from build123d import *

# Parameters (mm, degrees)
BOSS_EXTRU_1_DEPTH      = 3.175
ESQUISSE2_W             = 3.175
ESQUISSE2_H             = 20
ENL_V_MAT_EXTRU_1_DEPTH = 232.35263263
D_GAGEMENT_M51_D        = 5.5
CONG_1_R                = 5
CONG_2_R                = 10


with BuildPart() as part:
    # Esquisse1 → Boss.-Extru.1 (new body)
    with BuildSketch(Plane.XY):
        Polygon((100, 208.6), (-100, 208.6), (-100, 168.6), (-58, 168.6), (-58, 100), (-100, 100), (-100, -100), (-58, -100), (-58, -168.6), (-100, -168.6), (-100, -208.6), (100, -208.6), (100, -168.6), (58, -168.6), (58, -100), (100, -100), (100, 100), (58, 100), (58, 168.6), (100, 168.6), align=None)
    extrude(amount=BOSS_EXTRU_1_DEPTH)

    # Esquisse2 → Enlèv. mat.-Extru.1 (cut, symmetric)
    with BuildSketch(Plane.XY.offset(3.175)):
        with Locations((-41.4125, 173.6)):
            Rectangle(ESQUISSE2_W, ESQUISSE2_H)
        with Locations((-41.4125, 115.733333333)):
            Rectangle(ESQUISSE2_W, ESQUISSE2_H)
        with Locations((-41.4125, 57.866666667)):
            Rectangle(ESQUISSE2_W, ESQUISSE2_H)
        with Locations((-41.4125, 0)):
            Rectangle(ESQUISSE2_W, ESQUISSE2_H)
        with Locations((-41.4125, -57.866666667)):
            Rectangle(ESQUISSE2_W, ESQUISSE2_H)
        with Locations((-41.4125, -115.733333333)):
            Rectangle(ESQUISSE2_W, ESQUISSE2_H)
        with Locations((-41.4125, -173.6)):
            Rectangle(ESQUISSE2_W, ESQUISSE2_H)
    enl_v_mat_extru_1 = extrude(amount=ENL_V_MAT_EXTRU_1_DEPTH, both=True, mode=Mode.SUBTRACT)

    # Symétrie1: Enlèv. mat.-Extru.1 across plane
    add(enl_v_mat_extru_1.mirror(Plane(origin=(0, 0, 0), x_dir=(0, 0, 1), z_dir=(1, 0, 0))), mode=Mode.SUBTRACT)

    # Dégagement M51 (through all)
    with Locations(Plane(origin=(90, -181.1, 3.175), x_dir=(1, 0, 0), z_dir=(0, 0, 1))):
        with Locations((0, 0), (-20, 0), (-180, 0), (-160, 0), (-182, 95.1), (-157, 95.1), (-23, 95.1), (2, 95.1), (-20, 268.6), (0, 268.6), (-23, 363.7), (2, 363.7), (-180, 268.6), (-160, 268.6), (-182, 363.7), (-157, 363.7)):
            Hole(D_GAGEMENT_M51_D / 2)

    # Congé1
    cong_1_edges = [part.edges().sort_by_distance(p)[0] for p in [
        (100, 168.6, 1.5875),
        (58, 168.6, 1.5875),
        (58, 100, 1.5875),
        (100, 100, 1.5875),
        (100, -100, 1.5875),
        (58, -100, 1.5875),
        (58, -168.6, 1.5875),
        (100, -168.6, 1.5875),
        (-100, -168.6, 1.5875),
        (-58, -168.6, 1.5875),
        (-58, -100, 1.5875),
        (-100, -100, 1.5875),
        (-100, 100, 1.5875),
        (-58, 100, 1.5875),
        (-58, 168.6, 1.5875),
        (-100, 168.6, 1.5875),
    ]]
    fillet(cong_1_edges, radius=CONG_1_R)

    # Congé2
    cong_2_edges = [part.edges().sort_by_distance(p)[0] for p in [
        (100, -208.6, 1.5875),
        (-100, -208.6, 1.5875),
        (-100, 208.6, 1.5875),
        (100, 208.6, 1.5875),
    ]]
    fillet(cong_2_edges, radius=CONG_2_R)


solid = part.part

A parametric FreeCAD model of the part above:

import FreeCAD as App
import Part
import Sketcher

V = App.Vector
Q = App.Units.Quantity


def edges_at(feature, points):
    """Names of the edges that pass closest to the given points."""
    edges = feature.Shape.Edges
    near = lambda p: min(range(len(edges)), key=lambda i: edges[i].distToShape(Part.Vertex(*p))[0])
    return sorted({f"Edge{near(p) + 1}" for p in points})

doc = App.newDocument("Part")
body = doc.addObject("PartDesign::Body", "Body")

# Sketch on XY plane
sketch1 = body.newObject("Sketcher::SketchObject", "Sketch")
sketch1.AttachmentSupport = (doc.getObject("XY_Plane"), [""])
sketch1.MapMode = "FlatFace"
sketch1.addGeometry([
    Part.LineSegment(V(100, 208.6, 0), V(-100, 208.6, 0)),  # 0
    Part.LineSegment(V(-100, 208.6, 0), V(-100, 168.6, 0)),  # 1
    Part.LineSegment(V(-100, 168.6, 0), V(-58, 168.6, 0)),  # 2
    Part.LineSegment(V(-58, 168.6, 0), V(-58, 100, 0)),  # 3
    Part.LineSegment(V(-58, 100, 0), V(-100, 100, 0)),  # 4
    Part.LineSegment(V(-100, 100, 0), V(-100, -100, 0)),  # 5
    Part.LineSegment(V(-100, -100, 0), V(-58, -100, 0)),  # 6
    Part.LineSegment(V(-58, -100, 0), V(-58, -168.6, 0)),  # 7
    Part.LineSegment(V(-58, -168.6, 0), V(-100, -168.6, 0)),  # 8
    Part.LineSegment(V(-100, -168.6, 0), V(-100, -208.6, 0)),  # 9
    Part.LineSegment(V(-100, -208.6, 0), V(100, -208.6, 0)),  # 10
    Part.LineSegment(V(100, -208.6, 0), V(100, -168.6, 0)),  # 11
    Part.LineSegment(V(100, -168.6, 0), V(58, -168.6, 0)),  # 12
    Part.LineSegment(V(58, -168.6, 0), V(58, -100, 0)),  # 13
    Part.LineSegment(V(58, -100, 0), V(100, -100, 0)),  # 14
    Part.LineSegment(V(100, -100, 0), V(100, 100, 0)),  # 15
    Part.LineSegment(V(100, 100, 0), V(58, 100, 0)),  # 16
    Part.LineSegment(V(58, 100, 0), V(58, 168.6, 0)),  # 17
    Part.LineSegment(V(58, 168.6, 0), V(100, 168.6, 0)),  # 18
    Part.LineSegment(V(100, 168.6, 0), V(100, 208.6, 0)),  # 19
], False)
sketch1.addConstraint([
    Sketcher.Constraint("Coincident", 0, 2, 1, 1),
    Sketcher.Constraint("Coincident", 1, 2, 2, 1),
    Sketcher.Constraint("Coincident", 2, 2, 3, 1),
    Sketcher.Constraint("Coincident", 3, 2, 4, 1),
    Sketcher.Constraint("Coincident", 4, 2, 5, 1),
    Sketcher.Constraint("Coincident", 5, 2, 6, 1),
    Sketcher.Constraint("Coincident", 6, 2, 7, 1),
    Sketcher.Constraint("Coincident", 7, 2, 8, 1),
    Sketcher.Constraint("Coincident", 8, 2, 9, 1),
    Sketcher.Constraint("Coincident", 9, 2, 10, 1),
    Sketcher.Constraint("Coincident", 10, 2, 11, 1),
    Sketcher.Constraint("Coincident", 11, 2, 12, 1),
    Sketcher.Constraint("Coincident", 12, 2, 13, 1),
    Sketcher.Constraint("Coincident", 13, 2, 14, 1),
    Sketcher.Constraint("Coincident", 14, 2, 15, 1),
    Sketcher.Constraint("Coincident", 15, 2, 16, 1),
    Sketcher.Constraint("Coincident", 16, 2, 17, 1),
    Sketcher.Constraint("Coincident", 17, 2, 18, 1),
    Sketcher.Constraint("Coincident", 18, 2, 19, 1),
    Sketcher.Constraint("Coincident", 19, 2, 0, 1),
    Sketcher.Constraint("Horizontal", 0),
    Sketcher.Constraint("Vertical", 1),
    Sketcher.Constraint("Horizontal", 2),
    Sketcher.Constraint("Vertical", 3),
    Sketcher.Constraint("Horizontal", 4),
    Sketcher.Constraint("Vertical", 5),
    Sketcher.Constraint("Horizontal", 6),
    Sketcher.Constraint("Vertical", 7),
    Sketcher.Constraint("Horizontal", 8),
    Sketcher.Constraint("Vertical", 9),
    Sketcher.Constraint("Horizontal", 10),
    Sketcher.Constraint("Vertical", 11),
    Sketcher.Constraint("Horizontal", 12),
    Sketcher.Constraint("Vertical", 13),
    Sketcher.Constraint("Horizontal", 14),
    Sketcher.Constraint("Vertical", 15),
    Sketcher.Constraint("Horizontal", 16),
    Sketcher.Constraint("Vertical", 17),
    Sketcher.Constraint("Horizontal", 18),
    Sketcher.Constraint("Vertical", 19),
    Sketcher.Constraint("Symmetric", 0, 2, 10, 2, -1, 1),
    Sketcher.Constraint("Symmetric", 2, 2, 12, 2, -1, 1),
    Sketcher.Constraint("Symmetric", 4, 2, 14, 2, -1, 1),
    Sketcher.Constraint("Symmetric", 6, 2, 16, 2, -1, 1),
    Sketcher.Constraint("Symmetric", 8, 2, 18, 2, -1, 1),
    Sketcher.Constraint("Symmetric", 8, 2, 11, 2, -2),
    Sketcher.Constraint("Symmetric", 6, 2, 13, 2, -2),
    Sketcher.Constraint("Vertical", 1, 2, 4, 2),
    Sketcher.Constraint("Equal", 10, 5),
    Sketcher.Constraint("DistanceX", 0, 2, 0, 1, Q("200 mm")),
    Sketcher.Constraint("DistanceX", 2, 1, 2, 2, Q("42 mm")),
    Sketcher.Constraint("DistanceY", 1, 2, 1, 1, Q("40 mm")),
    Sketcher.Constraint("DistanceY", 3, 2, 3, 1, Q("68.6 mm")),
])
pad1 = body.newObject("PartDesign::Pad", "Pad")
pad1.Profile = sketch1
pad1.Length = 3.175

# Sketch on XY plane
sketch2 = body.newObject("Sketcher::SketchObject", "Sketch001")
sketch2.AttachmentSupport = (doc.getObject("XY_Plane"), [""])
sketch2.MapMode = "FlatFace"
sketch2.AttachmentOffset = App.Placement(V(0, 0, 3.175), App.Rotation())
sketch2.addGeometry([
    Part.LineSegment(V(-43, 183.6, 0), V(-43, 163.6, 0)),  # 0
    Part.LineSegment(V(-43, 163.6, 0), V(-39.825, 163.6, 0)),  # 1
    Part.LineSegment(V(-39.825, 163.6, 0), V(-39.825, 183.6, 0)),  # 2
    Part.LineSegment(V(-39.825, 183.6, 0), V(-43, 183.6, 0)),  # 3
    Part.LineSegment(V(-43, 125.733333, 0), V(-43, 105.733333, 0)),  # 4
    Part.LineSegment(V(-43, 105.733333, 0), V(-39.825, 105.733333, 0)),  # 5
    Part.LineSegment(V(-39.825, 105.733333, 0), V(-39.825, 125.733333, 0)),  # 6
    Part.LineSegment(V(-39.825, 125.733333, 0), V(-43, 125.733333, 0)),  # 7
    Part.LineSegment(V(-43, 67.866667, 0), V(-43, 47.866667, 0)),  # 8
    Part.LineSegment(V(-43, 47.866667, 0), V(-39.825, 47.866667, 0)),  # 9
    Part.LineSegment(V(-39.825, 47.866667, 0), V(-39.825, 67.866667, 0)),  # 10
    Part.LineSegment(V(-39.825, 67.866667, 0), V(-43, 67.866667, 0)),  # 11
    Part.LineSegment(V(-43, 10, 0), V(-43, -10, 0)),  # 12
    Part.LineSegment(V(-43, -10, 0), V(-39.825, -10, 0)),  # 13
    Part.LineSegment(V(-39.825, -10, 0), V(-39.825, 10, 0)),  # 14
    Part.LineSegment(V(-39.825, 10, 0), V(-43, 10, 0)),  # 15
    Part.LineSegment(V(-43, -47.866667, 0), V(-43, -67.866667, 0)),  # 16
    Part.LineSegment(V(-43, -67.866667, 0), V(-39.825, -67.866667, 0)),  # 17
    Part.LineSegment(V(-39.825, -67.866667, 0), V(-39.825, -47.866667, 0)),  # 18
    Part.LineSegment(V(-39.825, -47.866667, 0), V(-43, -47.866667, 0)),  # 19
    Part.LineSegment(V(-43, -105.733333, 0), V(-43, -125.733333, 0)),  # 20
    Part.LineSegment(V(-43, -125.733333, 0), V(-39.825, -125.733333, 0)),  # 21
    Part.LineSegment(V(-39.825, -125.733333, 0), V(-39.825, -105.733333, 0)),  # 22
    Part.LineSegment(V(-39.825, -105.733333, 0), V(-43, -105.733333, 0)),  # 23
    Part.LineSegment(V(-43, -163.6, 0), V(-43, -183.6, 0)),  # 24
    Part.LineSegment(V(-43, -183.6, 0), V(-39.825, -183.6, 0)),  # 25
    Part.LineSegment(V(-39.825, -183.6, 0), V(-39.825, -163.6, 0)),  # 26
    Part.LineSegment(V(-39.825, -163.6, 0), V(-43, -163.6, 0)),  # 27
], False)
sketch2.addConstraint([
    Sketcher.Constraint("Coincident", 0, 2, 1, 1),
    Sketcher.Constraint("Coincident", 1, 2, 2, 1),
    Sketcher.Constraint("Coincident", 2, 2, 3, 1),
    Sketcher.Constraint("Coincident", 3, 2, 0, 1),
    Sketcher.Constraint("Coincident", 4, 2, 5, 1),
    Sketcher.Constraint("Coincident", 5, 2, 6, 1),
    Sketcher.Constraint("Coincident", 6, 2, 7, 1),
    Sketcher.Constraint("Coincident", 7, 2, 4, 1),
    Sketcher.Constraint("Coincident", 8, 2, 9, 1),
    Sketcher.Constraint("Coincident", 9, 2, 10, 1),
    Sketcher.Constraint("Coincident", 10, 2, 11, 1),
    Sketcher.Constraint("Coincident", 11, 2, 8, 1),
    Sketcher.Constraint("Coincident", 12, 2, 13, 1),
    Sketcher.Constraint("Coincident", 13, 2, 14, 1),
    Sketcher.Constraint("Coincident", 14, 2, 15, 1),
    Sketcher.Constraint("Coincident", 15, 2, 12, 1),
    Sketcher.Constraint("Coincident", 16, 2, 17, 1),
    Sketcher.Constraint("Coincident", 17, 2, 18, 1),
    Sketcher.Constraint("Coincident", 18, 2, 19, 1),
    Sketcher.Constraint("Coincident", 19, 2, 16, 1),
    Sketcher.Constraint("Coincident", 20, 2, 21, 1),
    Sketcher.Constraint("Coincident", 21, 2, 22, 1),
    Sketcher.Constraint("Coincident", 22, 2, 23, 1),
    Sketcher.Constraint("Coincident", 23, 2, 20, 1),
    Sketcher.Constraint("Coincident", 24, 2, 25, 1),
    Sketcher.Constraint("Coincident", 25, 2, 26, 1),
    Sketcher.Constraint("Coincident", 26, 2, 27, 1),
    Sketcher.Constraint("Coincident", 27, 2, 24, 1),
    Sketcher.Constraint("Vertical", 0),
    Sketcher.Constraint("Horizontal", 1),
    Sketcher.Constraint("Vertical", 2),
    Sketcher.Constraint("Horizontal", 3),
    Sketcher.Constraint("Vertical", 4),
    Sketcher.Constraint("Horizontal", 5),
    Sketcher.Constraint("Vertical", 6),
    Sketcher.Constraint("Horizontal", 7),
    Sketcher.Constraint("Vertical", 8),
    Sketcher.Constraint("Horizontal", 9),
    Sketcher.Constraint("Vertical", 10),
    Sketcher.Constraint("Horizontal", 11),
    Sketcher.Constraint("Vertical", 12),
    Sketcher.Constraint("Horizontal", 13),
    Sketcher.Constraint("Vertical", 14),
    Sketcher.Constraint("Horizontal", 15),
    Sketcher.Constraint("Vertical", 16),
    Sketcher.Constraint("Horizontal", 17),
    Sketcher.Constraint("Vertical", 18),
    Sketcher.Constraint("Horizontal", 19),
    Sketcher.Constraint("Vertical", 20),
    Sketcher.Constraint("Horizontal", 21),
    Sketcher.Constraint("Vertical", 22),
    Sketcher.Constraint("Horizontal", 23),
    Sketcher.Constraint("Vertical", 24),
    Sketcher.Constraint("Horizontal", 25),
    Sketcher.Constraint("Vertical", 26),
    Sketcher.Constraint("Horizontal", 27),
    Sketcher.Constraint("Symmetric", 11, 2, 16, 2, -1),
    Sketcher.Constraint("Symmetric", 9, 2, 18, 2, -1),
    Sketcher.Constraint("Symmetric", 7, 2, 20, 2, -1),
    Sketcher.Constraint("Symmetric", 5, 2, 22, 2, -1),
    Sketcher.Constraint("Symmetric", 3, 2, 24, 2, -1),
    Sketcher.Constraint("Symmetric", 1, 2, 26, 2, -1),
    Sketcher.Constraint("Vertical", 3, 2, 4, 2),
    Sketcher.Constraint("Vertical", 2, 2, 5, 2),
    Sketcher.Constraint("Vertical", 7, 2, 8, 2),
    Sketcher.Constraint("Vertical", 6, 2, 9, 2),
    Sketcher.Constraint("Vertical", 11, 2, 12, 2),
    Sketcher.Constraint("Vertical", 10, 2, 13, 2),
    Sketcher.Constraint("Equal", 2, 4),
    Sketcher.Constraint("Equal", 6, 8),
    Sketcher.Constraint("Equal", 10, 12),
    Sketcher.Constraint("DistanceY", 0, 2, 0, 1, Q("20 mm")),
    Sketcher.Constraint("DistanceX", 0, 2, -1, 1, Q("43 mm")),
    Sketcher.Constraint("DistanceY", 12, 2, -1, 1, Q("10 mm")),
    Sketcher.Constraint("DistanceY", -1, 1, 0, 2, Q("163.6 mm")),
    Sketcher.Constraint("DistanceX", 1, 1, 1, 2, Q("3.175 mm")),
    Sketcher.Constraint("DistanceY", -1, 1, 4, 2, Q("105.733333 mm")),
    Sketcher.Constraint("DistanceY", -1, 1, 8, 2, Q("47.866667 mm")),
])
pocket1 = body.newObject("PartDesign::Pocket", "Pocket")
pocket1.Profile = sketch2
pocket1.Length = 464.705265
pocket1.Midplane = True
doc.recompute()

mirrored = body.newObject("PartDesign::Mirrored", "Mirrored")
mirrored.Originals = [pocket1]
mirrored.MirrorPlane = (doc.getObject("YZ_Plane"), [""])
body.Tip = mirrored

# Sketch on XY plane
sketch3 = body.newObject("Sketcher::SketchObject", "Sketch002")
sketch3.AttachmentSupport = (doc.getObject("XY_Plane"), [""])
sketch3.MapMode = "FlatFace"
sketch3.AttachmentOffset = App.Placement(V(0, 0, 3.175), App.Rotation())
sketch3.addGeometry([
    Part.Circle(V(90, -181.1, 0), V(0, 0, 1), 2.75),  # 0
    Part.Circle(V(70, -181.1, 0), V(0, 0, 1), 2.75),  # 1
    Part.Circle(V(-90, -181.1, 0), V(0, 0, 1), 2.75),  # 2
    Part.Circle(V(-70, -181.1, 0), V(0, 0, 1), 2.75),  # 3
    Part.Circle(V(-92, -86, 0), V(0, 0, 1), 2.75),  # 4
    Part.Circle(V(-67, -86, 0), V(0, 0, 1), 2.75),  # 5
    Part.Circle(V(67, -86, 0), V(0, 0, 1), 2.75),  # 6
    Part.Circle(V(92, -86, 0), V(0, 0, 1), 2.75),  # 7
    Part.Circle(V(70, 87.5, 0), V(0, 0, 1), 2.75),  # 8
    Part.Circle(V(90, 87.5, 0), V(0, 0, 1), 2.75),  # 9
    Part.Circle(V(67, 182.6, 0), V(0, 0, 1), 2.75),  # 10
    Part.Circle(V(92, 182.6, 0), V(0, 0, 1), 2.75),  # 11
    Part.Circle(V(-90, 87.5, 0), V(0, 0, 1), 2.75),  # 12
    Part.Circle(V(-70, 87.5, 0), V(0, 0, 1), 2.75),  # 13
    Part.Circle(V(-92, 182.6, 0), V(0, 0, 1), 2.75),  # 14
    Part.Circle(V(-67, 182.6, 0), V(0, 0, 1), 2.75),  # 15
], False)
sketch3.addConstraint([
    Sketcher.Constraint("Equal", 0, 1),
    Sketcher.Constraint("Equal", 1, 2),
    Sketcher.Constraint("Equal", 2, 3),
    Sketcher.Constraint("Equal", 3, 4),
    Sketcher.Constraint("Equal", 4, 5),
    Sketcher.Constraint("Equal", 5, 6),
    Sketcher.Constraint("Equal", 6, 7),
    Sketcher.Constraint("Equal", 7, 8),
    Sketcher.Constraint("Equal", 8, 9),
    Sketcher.Constraint("Equal", 9, 10),
    Sketcher.Constraint("Equal", 10, 11),
    Sketcher.Constraint("Equal", 11, 12),
    Sketcher.Constraint("Equal", 12, 13),
    Sketcher.Constraint("Equal", 13, 14),
    Sketcher.Constraint("Equal", 14, 15),
    Sketcher.Constraint("Symmetric", 0, 3, 2, 3, -2),
    Sketcher.Constraint("Symmetric", 1, 3, 3, 3, -2),
    Sketcher.Constraint("Symmetric", 5, 3, 6, 3, -2),
    Sketcher.Constraint("Symmetric", 4, 3, 7, 3, -2),
    Sketcher.Constraint("Symmetric", 9, 3, 12, 3, -2),
    Sketcher.Constraint("Symmetric", 8, 3, 13, 3, -2),
    Sketcher.Constraint("Symmetric", 11, 3, 14, 3, -2),
    Sketcher.Constraint("Symmetric", 10, 3, 15, 3, -2),
    Sketcher.Constraint("Horizontal", 0, 3, 1, 3),
    Sketcher.Constraint("Horizontal", 4, 3, 5, 3),
    Sketcher.Constraint("Horizontal", 8, 3, 9, 3),
    Sketcher.Constraint("Horizontal", 10, 3, 11, 3),
    Sketcher.Constraint("Vertical", 1, 3, 8, 3),
    Sketcher.Constraint("Vertical", 0, 3, 9, 3),
    Sketcher.Constraint("Vertical", 6, 3, 10, 3),
    Sketcher.Constraint("Vertical", 7, 3, 11, 3),
    Sketcher.Constraint("Diameter", 0, Q("5.5 mm")),
    Sketcher.Constraint("DistanceX", -1, 1, 0, 3, Q("90 mm")),
    Sketcher.Constraint("DistanceX", -1, 1, 1, 3, Q("70 mm")),
    Sketcher.Constraint("DistanceX", 4, 3, -1, 1, Q("92 mm")),
    Sketcher.Constraint("DistanceY", 4, 3, -1, 1, Q("86 mm")),
    Sketcher.Constraint("DistanceX", 5, 3, -1, 1, Q("67 mm")),
    Sketcher.Constraint("DistanceY", 0, 3, -1, 1, Q("181.1 mm")),
    Sketcher.Constraint("DistanceY", -1, 1, 8, 3, Q("87.5 mm")),
    Sketcher.Constraint("DistanceY", -1, 1, 10, 3, Q("182.6 mm")),
])
doc.recompute()
hole = body.newObject("PartDesign::Hole", "Hole")
hole.Profile = sketch3
hole.ThreadType = "None"
hole.Diameter = 5.5
hole.DepthType = "ThroughAll"
doc.recompute()

fillet = body.newObject("PartDesign::Fillet", "Fillet")
fillet.Base = (hole, edges_at(hole, [
    (100, 168.6, 1.587),
    (58, 168.6, 1.587),
    (58, 100, 1.587),
    (100, 100, 1.587),
    (100, -100, 1.587),
    (58, -100, 1.587),
    (58, -168.6, 1.587),
    (100, -168.6, 1.587),
    (-100, -168.6, 1.587),
    (-58, -168.6, 1.587),
    (-58, -100, 1.587),
    (-100, -100, 1.587),
    (-100, 100, 1.587),
    (-58, 100, 1.587),
    (-58, 168.6, 1.587),
    (-100, 168.6, 1.587),
]))
fillet.Radius = 5
doc.recompute()

fillet2 = body.newObject("PartDesign::Fillet", "Fillet001")
fillet2.Base = (fillet, edges_at(fillet, [
    (100, -208.6, 1.587),
    (-100, -208.6, 1.587),
    (-100, 208.6, 1.587),
    (100, 208.6, 1.587),
]))
fillet2.Radius = 10

doc.recompute()
